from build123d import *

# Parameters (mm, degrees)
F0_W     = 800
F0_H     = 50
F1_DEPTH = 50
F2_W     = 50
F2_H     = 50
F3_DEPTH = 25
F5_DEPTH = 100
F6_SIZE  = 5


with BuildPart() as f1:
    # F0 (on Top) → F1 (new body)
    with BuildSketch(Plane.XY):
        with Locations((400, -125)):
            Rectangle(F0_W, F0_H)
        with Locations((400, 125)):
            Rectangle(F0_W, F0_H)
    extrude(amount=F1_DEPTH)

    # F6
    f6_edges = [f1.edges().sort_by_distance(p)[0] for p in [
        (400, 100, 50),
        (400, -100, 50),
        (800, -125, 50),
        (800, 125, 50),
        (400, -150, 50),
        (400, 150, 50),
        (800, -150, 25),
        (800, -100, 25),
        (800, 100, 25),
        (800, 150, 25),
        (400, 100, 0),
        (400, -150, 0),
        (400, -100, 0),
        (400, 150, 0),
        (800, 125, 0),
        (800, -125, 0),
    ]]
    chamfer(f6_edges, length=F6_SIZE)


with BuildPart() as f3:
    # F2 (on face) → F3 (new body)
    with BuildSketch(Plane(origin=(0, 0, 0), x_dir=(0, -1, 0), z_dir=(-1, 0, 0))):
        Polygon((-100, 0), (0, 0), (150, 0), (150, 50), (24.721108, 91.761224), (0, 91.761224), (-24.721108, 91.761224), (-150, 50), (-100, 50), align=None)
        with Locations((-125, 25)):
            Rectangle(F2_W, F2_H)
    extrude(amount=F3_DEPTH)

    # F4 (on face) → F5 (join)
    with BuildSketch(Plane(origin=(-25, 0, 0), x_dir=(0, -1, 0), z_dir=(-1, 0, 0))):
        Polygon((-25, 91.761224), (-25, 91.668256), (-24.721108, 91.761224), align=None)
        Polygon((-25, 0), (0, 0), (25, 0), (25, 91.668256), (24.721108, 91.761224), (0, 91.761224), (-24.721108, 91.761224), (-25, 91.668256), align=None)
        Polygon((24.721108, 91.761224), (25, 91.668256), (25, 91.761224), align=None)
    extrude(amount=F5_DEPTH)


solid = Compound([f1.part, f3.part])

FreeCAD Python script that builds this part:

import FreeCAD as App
import Part
import Sketcher

V = App.Vector


def edges_at(feature, points):
    """Names of the edges that pass closest to the given points."""
    edges = feature.Shape.Edges
    near = lambda p: min(range(len(edges)), key=lambda i: edges[i].distToShape(Part.Vertex(*p))[0])
    return sorted({f"Edge{near(p) + 1}" for p in points})

doc = App.newDocument("Part")
body = doc.addObject("PartDesign::Body", "Body")
body.AllowCompound = True

# Sketch on XY plane
sketch1 = doc.addObject("Sketcher::SketchObject", "Sketch")
body.addObject(sketch1)
sketch1.AttachmentSupport = (doc.XY_Plane, [""])
sketch1.MapMode = "FlatFace"
sketch1.addGeometry(Part.LineSegment(V(0, -100, 0), V(0, -150, 0)), False)
sketch1.addGeometry(Part.LineSegment(V(0, -150, 0), V(800, -150, 0)), False)
sketch1.addGeometry(Part.LineSegment(V(800, -150, 0), V(800, -100, 0)), False)
sketch1.addGeometry(Part.LineSegment(V(800, -100, 0), V(0, -100, 0)), False)
sketch1.addGeometry(Part.LineSegment(V(0, 150, 0), V(0, 100, 0)), False)
sketch1.addGeometry(Part.LineSegment(V(0, 100, 0), V(800, 100, 0)), False)
sketch1.addGeometry(Part.LineSegment(V(800, 100, 0), V(800, 150, 0)), False)
sketch1.addGeometry(Part.LineSegment(V(800, 150, 0), V(0, 150, 0)), False)
sketch1.addConstraint(Sketcher.Constraint("Coincident", 0, 2, 1, 1))
sketch1.addConstraint(Sketcher.Constraint("Coincident", 1, 2, 2, 1))
sketch1.addConstraint(Sketcher.Constraint("Coincident", 2, 2, 3, 1))
sketch1.addConstraint(Sketcher.Constraint("Coincident", 3, 2, 0, 1))
sketch1.addConstraint(Sketcher.Constraint("Coincident", 4, 2, 5, 1))
sketch1.addConstraint(Sketcher.Constraint("Coincident", 5, 2, 6, 1))
sketch1.addConstraint(Sketcher.Constraint("Coincident", 6, 2, 7, 1))
sketch1.addConstraint(Sketcher.Constraint("Coincident", 7, 2, 4, 1))
sketch1.addConstraint(Sketcher.Constraint("Vertical", 0))
sketch1.addConstraint(Sketcher.Constraint("Horizontal", 1))
sketch1.addConstraint(Sketcher.Constraint("Vertical", 2))
sketch1.addConstraint(Sketcher.Constraint("Horizontal", 3))
sketch1.addConstraint(Sketcher.Constraint("Vertical", 4))
sketch1.addConstraint(Sketcher.Constraint("Horizontal", 5))
sketch1.addConstraint(Sketcher.Constraint("Vertical", 6))
sketch1.addConstraint(Sketcher.Constraint("Horizontal", 7))
sketch1.addConstraint(Sketcher.Constraint("Symmetric", 3, 2, 4, 2, -1, 1))
sketch1.addConstraint(Sketcher.Constraint("Symmetric", 1, 2, 6, 2, -1))
sketch1.addConstraint(Sketcher.Constraint("PointOnObject", 0, 2, -2))
sketch1.addConstraint(Sketcher.Constraint("DistanceX", 1, 1, 1, 2, 800.0))
sketch1.addConstraint(Sketcher.Constraint("DistanceY", 0, 2, 0, 1, 50.0))
sketch1.addConstraint(Sketcher.Constraint("DistanceY", 0, 2, -1, 1, 150.0))
pad1 = doc.addObject("PartDesign::Pad", "Pad")
body.addObject(pad1)
pad1.Profile = sketch1
pad1.Length = 50
doc.recompute()

chamfer = doc.addObject("PartDesign::Chamfer", "Chamfer")
body.addObject(chamfer)
chamfer.Base = (pad1, edges_at(pad1, [
    (400, 100, 50),
    (400, -100, 50),
    (800, -125, 50),
    (800, 125, 50),
    (400, -150, 50),
    (400, 150, 50),
    (800, -150, 25),
    (800, -100, 25),
    (800, 100, 25),
    (800, 150, 25),
    (400, 100, 0),
    (400, -150, 0),
    (400, -100, 0),
    (400, 150, 0),
    (800, 125, 0),
    (800, -125, 0),
]))
chamfer.Size = 5
body2 = doc.addObject("PartDesign::Body", "Body001")

# Sketch on YZ plane
sketch2 = doc.addObject("Sketcher::SketchObject", "Sketch001")
body2.addObject(sketch2)
sketch2.AttachmentSupport = (doc.getObject("YZ_Plane001"), [""])
sketch2.MapMode = "FlatFace"
sketch2.addGeometry(Part.LineSegment(V(-150, 0, 0), V(-150, 50, 0)), False)
sketch2.addGeometry(Part.LineSegment(V(-150, 50, 0), V(-25, 92, 0)), False)
sketch2.addGeometry(Part.LineSegment(V(-25, 92, 0), V(25, 92, 0)), False)
sketch2.addGeometry(Part.LineSegment(V(25, 92, 0), V(150, 50, 0)), False)
sketch2.addGeometry(Part.LineSegment(V(150, 50, 0), V(150, 0, 0)), False)
sketch2.addGeometry(Part.LineSegment(V(150, 0, 0), V(-150, 0, 0)), False)
sketch2.addConstraint(Sketcher.Constraint("Coincident", 0, 2, 1, 1))
sketch2.addConstraint(Sketcher.Constraint("Coincident", 1, 2, 2, 1))
sketch2.addConstraint(Sketcher.Constraint("Coincident", 2, 2, 3, 1))
sketch2.addConstraint(Sketcher.Constraint("Coincident", 3, 2, 4, 1))
sketch2.addConstraint(Sketcher.Constraint("Coincident", 4, 2, 5, 1))
sketch2.addConstraint(Sketcher.Constraint("Coincident", 5, 2, 0, 1))
sketch2.addConstraint(Sketcher.Constraint("Vertical", 0))
sketch2.addConstraint(Sketcher.Constraint("Horizontal", 2))
sketch2.addConstraint(Sketcher.Constraint("Vertical", 4))
sketch2.addConstraint(Sketcher.Constraint("Horizontal", 5))
sketch2.addConstraint(Sketcher.Constraint("Symmetric", 4, 2, 5, 2, -1, 1))
sketch2.addConstraint(Sketcher.Constraint("Horizontal", 0, 2, 3, 2))
sketch2.addConstraint(Sketcher.Constraint("Equal", 1, 3))
sketch2.addConstraint(Sketcher.Constraint("DistanceX", 5, 2, 5, 1, 300.0))
sketch2.addConstraint(Sketcher.Constraint("DistanceY", 0, 1, 0, 2, 50.0))
sketch2.addConstraint(Sketcher.Constraint("Distance", 1, 132.056051))
sketch2.addConstraint(Sketcher.Constraint("DistanceX", 2, 1, 2, 2, 49.442216))
pad2 = doc.addObject("PartDesign::Pad", "Pad001")
body2.addObject(pad2)
pad2.Profile = sketch2
pad2.Length = 25
pad2.Reversed = True

# Sketch on YZ plane
sketch3 = doc.addObject("Sketcher::SketchObject", "Sketch002")
body2.addObject(sketch3)
sketch3.AttachmentSupport = (doc.getObject("YZ_Plane001"), [""])
sketch3.MapMode = "FlatFace"
sketch3.AttachmentOffset = App.Placement(V(0, 0, -25), App.Rotation())
sketch3.addGeometry(Part.LineSegment(V(25, 92, 0), V(25, 0, 0)), False)
sketch3.addGeometry(Part.LineSegment(V(25, 0, 0), V(-25, 0, 0)), False)
sketch3.addGeometry(Part.LineSegment(V(-25, 0, 0), V(-25, 92, 0)), False)
sketch3.addGeometry(Part.LineSegment(V(-25, 92, 0), V(25, 92, 0)), False)
sketch3.addConstraint(Sketcher.Constraint("Coincident", 0, 2, 1, 1))
sketch3.addConstraint(Sketcher.Constraint("Coincident", 1, 2, 2, 1))
sketch3.addConstraint(Sketcher.Constraint("Coincident", 2, 2, 3, 1))
sketch3.addConstraint(Sketcher.Constraint("Coincident", 3, 2, 0, 1))
sketch3.addConstraint(Sketcher.Constraint("Vertical", 0))
sketch3.addConstraint(Sketcher.Constraint("Horizontal", 1))
sketch3.addConstraint(Sketcher.Constraint("Vertical", 2))
sketch3.addConstraint(Sketcher.Constraint("Horizontal", 3))
sketch3.addConstraint(Sketcher.Constraint("Symmetric", 0, 2, 1, 2, -1, 1))
sketch3.addConstraint(Sketcher.Constraint("DistanceX", 1, 2, 1, 1, 50.0))
sketch3.addConstraint(Sketcher.Constraint("DistanceY", 0, 2, 0, 1, 91.761224))
pad3 = doc.addObject("PartDesign::Pad", "Pad002")
body2.addObject(pad3)
pad3.Profile = sketch3
pad3.Length = 100
pad3.Reversed = True

doc.recompute()
